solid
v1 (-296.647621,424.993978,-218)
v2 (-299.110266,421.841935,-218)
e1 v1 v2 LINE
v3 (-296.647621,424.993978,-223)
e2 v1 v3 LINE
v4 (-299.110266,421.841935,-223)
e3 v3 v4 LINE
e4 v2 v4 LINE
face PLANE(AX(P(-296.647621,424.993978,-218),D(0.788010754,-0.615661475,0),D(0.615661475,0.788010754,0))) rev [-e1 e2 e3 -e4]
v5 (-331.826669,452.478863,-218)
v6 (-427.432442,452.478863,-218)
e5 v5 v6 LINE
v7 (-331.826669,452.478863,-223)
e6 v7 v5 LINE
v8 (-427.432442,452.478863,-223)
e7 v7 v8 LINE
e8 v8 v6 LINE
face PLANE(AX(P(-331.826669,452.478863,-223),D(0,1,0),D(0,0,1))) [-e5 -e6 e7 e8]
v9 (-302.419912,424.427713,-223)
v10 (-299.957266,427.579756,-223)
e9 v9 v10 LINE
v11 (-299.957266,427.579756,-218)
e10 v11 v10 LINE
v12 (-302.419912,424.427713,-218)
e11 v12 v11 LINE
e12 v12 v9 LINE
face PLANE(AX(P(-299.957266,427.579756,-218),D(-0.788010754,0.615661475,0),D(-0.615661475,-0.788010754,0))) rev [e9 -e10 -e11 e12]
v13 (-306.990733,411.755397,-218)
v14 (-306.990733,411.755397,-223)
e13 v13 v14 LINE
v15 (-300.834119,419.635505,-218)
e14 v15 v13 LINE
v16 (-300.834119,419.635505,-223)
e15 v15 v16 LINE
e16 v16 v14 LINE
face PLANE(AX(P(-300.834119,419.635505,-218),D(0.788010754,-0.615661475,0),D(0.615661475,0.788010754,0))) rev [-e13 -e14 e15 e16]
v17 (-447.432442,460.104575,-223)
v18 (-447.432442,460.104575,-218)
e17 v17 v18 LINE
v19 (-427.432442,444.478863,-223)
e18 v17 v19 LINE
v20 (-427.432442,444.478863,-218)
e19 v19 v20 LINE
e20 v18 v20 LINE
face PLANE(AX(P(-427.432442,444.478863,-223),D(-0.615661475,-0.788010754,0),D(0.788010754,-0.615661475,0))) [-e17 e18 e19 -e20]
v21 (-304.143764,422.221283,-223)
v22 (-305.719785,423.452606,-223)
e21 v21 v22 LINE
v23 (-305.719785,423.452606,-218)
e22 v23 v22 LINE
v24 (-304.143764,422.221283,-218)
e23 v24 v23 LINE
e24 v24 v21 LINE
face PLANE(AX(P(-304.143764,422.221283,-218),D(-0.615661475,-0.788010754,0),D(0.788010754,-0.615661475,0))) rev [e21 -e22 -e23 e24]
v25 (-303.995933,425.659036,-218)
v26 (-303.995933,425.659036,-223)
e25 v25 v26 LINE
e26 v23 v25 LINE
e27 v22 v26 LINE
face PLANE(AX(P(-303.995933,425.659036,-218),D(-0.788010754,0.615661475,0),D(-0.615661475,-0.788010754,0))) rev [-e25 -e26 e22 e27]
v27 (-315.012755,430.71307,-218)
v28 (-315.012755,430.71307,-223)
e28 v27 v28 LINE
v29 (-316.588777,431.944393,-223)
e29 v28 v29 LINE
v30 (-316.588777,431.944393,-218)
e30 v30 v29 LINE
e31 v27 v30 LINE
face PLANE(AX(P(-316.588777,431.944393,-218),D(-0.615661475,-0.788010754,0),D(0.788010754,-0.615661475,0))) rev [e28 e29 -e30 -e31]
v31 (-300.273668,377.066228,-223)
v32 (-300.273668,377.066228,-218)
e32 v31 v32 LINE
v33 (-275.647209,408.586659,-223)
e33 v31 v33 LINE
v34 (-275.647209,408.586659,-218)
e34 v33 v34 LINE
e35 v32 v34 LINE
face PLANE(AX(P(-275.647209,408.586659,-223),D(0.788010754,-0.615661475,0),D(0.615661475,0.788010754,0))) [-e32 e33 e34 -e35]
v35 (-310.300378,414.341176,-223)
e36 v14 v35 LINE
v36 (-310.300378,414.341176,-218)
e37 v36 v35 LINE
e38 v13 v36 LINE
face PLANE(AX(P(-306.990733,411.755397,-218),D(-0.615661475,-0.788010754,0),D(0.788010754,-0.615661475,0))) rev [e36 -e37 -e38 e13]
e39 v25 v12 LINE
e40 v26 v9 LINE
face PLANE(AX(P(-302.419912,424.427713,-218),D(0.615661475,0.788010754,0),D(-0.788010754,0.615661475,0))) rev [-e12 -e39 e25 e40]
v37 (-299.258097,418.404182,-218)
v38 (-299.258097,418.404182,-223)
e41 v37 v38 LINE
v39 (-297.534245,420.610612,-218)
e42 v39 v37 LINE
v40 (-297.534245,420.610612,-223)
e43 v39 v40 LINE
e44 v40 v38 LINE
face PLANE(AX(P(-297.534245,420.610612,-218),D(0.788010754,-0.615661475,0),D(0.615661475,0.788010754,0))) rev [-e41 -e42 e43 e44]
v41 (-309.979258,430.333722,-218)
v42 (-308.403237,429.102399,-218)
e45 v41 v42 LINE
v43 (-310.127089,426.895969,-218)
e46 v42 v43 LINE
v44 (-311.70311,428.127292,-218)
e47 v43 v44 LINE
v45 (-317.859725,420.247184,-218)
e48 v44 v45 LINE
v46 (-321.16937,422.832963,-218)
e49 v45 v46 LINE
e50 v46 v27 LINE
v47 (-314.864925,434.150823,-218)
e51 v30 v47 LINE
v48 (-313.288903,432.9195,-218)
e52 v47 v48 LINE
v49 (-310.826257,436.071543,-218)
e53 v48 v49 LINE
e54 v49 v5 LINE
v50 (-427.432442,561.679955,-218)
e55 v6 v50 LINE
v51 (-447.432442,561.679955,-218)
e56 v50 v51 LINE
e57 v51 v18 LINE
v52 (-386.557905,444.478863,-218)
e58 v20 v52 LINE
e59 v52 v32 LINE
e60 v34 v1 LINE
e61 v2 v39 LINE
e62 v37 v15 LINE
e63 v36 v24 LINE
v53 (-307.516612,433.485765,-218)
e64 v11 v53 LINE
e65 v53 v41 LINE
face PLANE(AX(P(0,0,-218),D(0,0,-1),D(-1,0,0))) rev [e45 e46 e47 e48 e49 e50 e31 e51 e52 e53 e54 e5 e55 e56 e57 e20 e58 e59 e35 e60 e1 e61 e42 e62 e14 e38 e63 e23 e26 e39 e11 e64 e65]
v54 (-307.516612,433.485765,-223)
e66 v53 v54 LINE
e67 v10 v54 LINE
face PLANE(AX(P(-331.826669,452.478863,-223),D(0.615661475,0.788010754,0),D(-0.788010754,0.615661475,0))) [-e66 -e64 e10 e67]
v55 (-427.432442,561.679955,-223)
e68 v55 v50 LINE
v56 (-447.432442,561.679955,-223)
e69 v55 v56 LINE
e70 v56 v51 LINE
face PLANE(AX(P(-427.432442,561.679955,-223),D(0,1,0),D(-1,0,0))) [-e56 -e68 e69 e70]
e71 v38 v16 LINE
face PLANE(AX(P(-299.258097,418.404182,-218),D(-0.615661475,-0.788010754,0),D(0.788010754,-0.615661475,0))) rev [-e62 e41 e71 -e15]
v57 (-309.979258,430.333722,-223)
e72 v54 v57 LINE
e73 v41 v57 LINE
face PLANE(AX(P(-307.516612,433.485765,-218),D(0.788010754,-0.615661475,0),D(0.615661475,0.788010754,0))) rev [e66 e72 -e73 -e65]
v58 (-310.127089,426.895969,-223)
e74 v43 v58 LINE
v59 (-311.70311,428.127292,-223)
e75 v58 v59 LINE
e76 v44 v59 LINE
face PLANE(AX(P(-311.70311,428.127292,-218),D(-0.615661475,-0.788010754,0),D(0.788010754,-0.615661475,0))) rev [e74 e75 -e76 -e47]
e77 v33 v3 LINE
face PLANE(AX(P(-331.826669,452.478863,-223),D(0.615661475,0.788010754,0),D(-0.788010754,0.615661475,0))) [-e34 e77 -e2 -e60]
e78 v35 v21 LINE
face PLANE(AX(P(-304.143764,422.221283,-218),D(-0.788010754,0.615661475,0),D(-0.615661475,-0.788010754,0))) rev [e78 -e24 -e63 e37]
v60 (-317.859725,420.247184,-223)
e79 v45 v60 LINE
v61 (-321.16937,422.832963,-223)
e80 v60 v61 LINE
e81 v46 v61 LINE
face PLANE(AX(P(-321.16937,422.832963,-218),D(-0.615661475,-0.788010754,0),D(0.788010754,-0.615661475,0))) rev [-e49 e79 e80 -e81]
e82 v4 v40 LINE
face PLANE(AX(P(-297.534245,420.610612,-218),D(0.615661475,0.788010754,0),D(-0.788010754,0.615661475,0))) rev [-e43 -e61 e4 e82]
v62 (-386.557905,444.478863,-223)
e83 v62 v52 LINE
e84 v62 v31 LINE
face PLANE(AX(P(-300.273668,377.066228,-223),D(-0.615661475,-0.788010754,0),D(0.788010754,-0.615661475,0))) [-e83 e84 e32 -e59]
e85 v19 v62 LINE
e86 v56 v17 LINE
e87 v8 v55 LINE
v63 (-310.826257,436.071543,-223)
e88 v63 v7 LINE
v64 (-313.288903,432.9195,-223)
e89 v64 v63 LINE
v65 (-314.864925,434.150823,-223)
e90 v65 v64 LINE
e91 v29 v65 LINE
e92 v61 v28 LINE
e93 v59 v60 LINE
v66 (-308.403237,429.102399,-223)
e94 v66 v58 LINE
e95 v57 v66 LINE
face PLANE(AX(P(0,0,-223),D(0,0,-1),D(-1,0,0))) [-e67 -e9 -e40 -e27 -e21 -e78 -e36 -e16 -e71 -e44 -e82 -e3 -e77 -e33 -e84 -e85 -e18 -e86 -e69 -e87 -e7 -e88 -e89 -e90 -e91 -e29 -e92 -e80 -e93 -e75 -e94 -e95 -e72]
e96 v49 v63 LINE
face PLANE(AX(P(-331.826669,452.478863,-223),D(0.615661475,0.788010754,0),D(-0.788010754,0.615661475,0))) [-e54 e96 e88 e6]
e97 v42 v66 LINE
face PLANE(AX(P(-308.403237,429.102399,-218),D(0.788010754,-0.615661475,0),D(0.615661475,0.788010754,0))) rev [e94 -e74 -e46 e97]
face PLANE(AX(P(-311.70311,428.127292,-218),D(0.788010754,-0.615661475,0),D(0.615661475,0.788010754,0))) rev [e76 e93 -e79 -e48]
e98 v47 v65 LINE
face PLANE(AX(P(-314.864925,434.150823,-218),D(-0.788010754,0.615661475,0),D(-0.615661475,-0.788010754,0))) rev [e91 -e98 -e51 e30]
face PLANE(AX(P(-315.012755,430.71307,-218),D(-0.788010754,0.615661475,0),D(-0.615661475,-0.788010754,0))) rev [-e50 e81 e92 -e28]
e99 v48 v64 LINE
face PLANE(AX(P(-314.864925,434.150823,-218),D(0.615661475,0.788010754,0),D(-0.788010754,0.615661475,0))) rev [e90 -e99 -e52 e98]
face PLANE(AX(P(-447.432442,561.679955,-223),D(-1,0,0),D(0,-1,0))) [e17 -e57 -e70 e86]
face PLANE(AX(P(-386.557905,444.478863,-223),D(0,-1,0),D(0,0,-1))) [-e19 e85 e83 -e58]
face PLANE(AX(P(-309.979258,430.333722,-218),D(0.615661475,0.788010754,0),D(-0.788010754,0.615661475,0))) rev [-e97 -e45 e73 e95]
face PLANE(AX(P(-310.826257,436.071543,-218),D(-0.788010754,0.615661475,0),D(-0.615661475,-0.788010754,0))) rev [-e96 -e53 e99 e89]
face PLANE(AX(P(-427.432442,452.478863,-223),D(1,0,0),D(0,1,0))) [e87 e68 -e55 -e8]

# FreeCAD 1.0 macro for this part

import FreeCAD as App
import Part
import Sketcher
Q = App.Units.Quantity

doc = App.newDocument("Part")
body = doc.addObject("PartDesign::Body", "Body")

sketch1 = doc.addObject("Sketcher::SketchObject", "Sketch")
body.addObject(sketch1)
sketch1.AttachmentSupport = (doc.XY_Plane, [""])
sketch1.MapMode = "FlatFace"
sketch1.AttachmentOffset = App.Placement(App.Vector(0, 0, -218), App.Rotation())
sketch1.addGeometry(Part.LineSegment(App.Vector(-276, 409, 0), App.Vector(-332, 452, 0)), False)
sketch1.addGeometry(Part.LineSegment(App.Vector(-332, 452, 0), App.Vector(-427, 452, 0)), False)
sketch1.addGeometry(Part.LineSegment(App.Vector(-427, 452, 0), App.Vector(-427, 562, 0)), False)
sketch1.addGeometry(Part.LineSegment(App.Vector(-427, 562, 0), App.Vector(-447, 562, 0)), False)
sketch1.addGeometry(Part.LineSegment(App.Vector(-447, 562, 0), App.Vector(-447, 460, 0)), False)
sketch1.addGeometry(Part.LineSegment(App.Vector(-447, 460, 0), App.Vector(-427, 444, 0)), False)
sketch1.addGeometry(Part.LineSegment(App.Vector(-427, 444, 0), App.Vector(-387, 444, 0)), False)
sketch1.addGeometry(Part.LineSegment(App.Vector(-387, 444, 0), App.Vector(-300, 377, 0)), False)
sketch1.addGeometry(Part.LineSegment(App.Vector(-300, 377, 0), App.Vector(-276, 409, 0)), False)
sketch1.addConstraint(Sketcher.Constraint("Coincident", 0, 2, 1, 1))
sketch1.addConstraint(Sketcher.Constraint("Coincident", 1, 2, 2, 1))
sketch1.addConstraint(Sketcher.Constraint("Coincident", 2, 2, 3, 1))
sketch1.addConstraint(Sketcher.Constraint("Coincident", 3, 2, 4, 1))
sketch1.addConstraint(Sketcher.Constraint("Coincident", 4, 2, 5, 1))
sketch1.addConstraint(Sketcher.Constraint("Coincident", 5, 2, 6, 1))
sketch1.addConstraint(Sketcher.Constraint("Coincident", 6, 2, 7, 1))
sketch1.addConstraint(Sketcher.Constraint("Coincident", 7, 2, 8, 1))
sketch1.addConstraint(Sketcher.Constraint("Coincident", 8, 2, 0, 1))
sketch1.addConstraint(Sketcher.Constraint("Horizontal", 1))
sketch1.addConstraint(Sketcher.Constraint("Vertical", 2))
sketch1.addConstraint(Sketcher.Constraint("Horizontal", 3))
sketch1.addConstraint(Sketcher.Constraint("Vertical", 4))
sketch1.addConstraint(Sketcher.Constraint("Horizontal", 6))
sketch1.addConstraint(Sketcher.Constraint("Parallel", 0, 5))
sketch1.addConstraint(Sketcher.Constraint("Parallel", 5, 7))
sketch1.addConstraint(Sketcher.Constraint("Perpendicular", 7, 8))
sketch1.addConstraint(Sketcher.Constraint("Vertical", 2, 2, 5, 2))
sketch1.addConstraint(Sketcher.Constraint("DistanceX", 3, 2, 3, 1, Q("20 mm")))
sketch1.addConstraint(Sketcher.Constraint("Angle", 0, Q("142 deg")))
sketch1.addConstraint(Sketcher.Constraint("Distance", 8, Q("40 mm")))
sketch1.addConstraint(Sketcher.Constraint("DistanceY", 5, 2, 1, 2, Q("8 mm")))
sketch1.addConstraint(Sketcher.Constraint("DistanceX", 0, 2, 7, 2, Q("31.553001 mm")))
sketch1.addConstraint(Sketcher.Constraint("DistanceY", 4, 2, 4, 1, Q("101.57538 mm")))
sketch1.addConstraint(Sketcher.Constraint("DistanceX", 1, 2, 1, 1, Q("95.605774 mm")))
sketch1.addConstraint(Sketcher.Constraint("DistanceX", 0, 2, -1, 1, Q("331.826669 mm")))
sketch1.addConstraint(Sketcher.Constraint("DistanceY", -1, 1, 7, 2, Q("377.066228 mm")))
pad1 = doc.addObject("PartDesign::Pad", "Pad")
body.addObject(pad1)
pad1.Profile = sketch1
pad1.Length = 5
pad1.Reversed = True

sketch2 = doc.addObject("Sketcher::SketchObject", "Sketch001")
body.addObject(sketch2)
sketch2.AttachmentSupport = (doc.XY_Plane, [""])
sketch2.MapMode = "FlatFace"
sketch2.AttachmentOffset = App.Placement(App.Vector(0, 0, -223), App.Rotation())
sketch2.addGeometry(Part.LineSegment(App.Vector(-300, 427.6, 0), App.Vector(-296.6, 425, 0)), False)
sketch2.addGeometry(Part.LineSegment(App.Vector(-296.6, 425, 0), App.Vector(-299.1, 421.8, 0)), False)
sketch2.addGeometry(Part.LineSegment(App.Vector(-299.1, 421.8, 0), App.Vector(-297.5, 420.6, 0)), False)
sketch2.addGeometry(Part.LineSegment(App.Vector(-297.5, 420.6, 0), App.Vector(-299.3, 418.4, 0)), False)
sketch2.addGeometry(Part.LineSegment(App.Vector(-299.3, 418.4, 0), App.Vector(-300.8, 419.6, 0)), False)
sketch2.addGeometry(Part.LineSegment(App.Vector(-300.8, 419.6, 0), App.Vector(-307, 411.8, 0)), False)
sketch2.addGeometry(Part.LineSegment(App.Vector(-307, 411.8, 0), App.Vector(-310.3, 414.3, 0)), False)
sketch2.addGeometry(Part.LineSegment(App.Vector(-310.3, 414.3, 0), App.Vector(-304.1, 422.2, 0)), False)
sketch2.addGeometry(Part.LineSegment(App.Vector(-304.1, 422.2, 0), App.Vector(-305.7, 423.5, 0)), False)
sketch2.addGeometry(Part.LineSegment(App.Vector(-305.7, 423.5, 0), App.Vector(-304, 425.7, 0)), False)
sketch2.addGeometry(Part.LineSegment(App.Vector(-304, 425.7, 0), App.Vector(-302.4, 424.4, 0)), False)
sketch2.addGeometry(Part.LineSegment(App.Vector(-302.4, 424.4, 0), App.Vector(-300, 427.6, 0)), False)
sketch2.addGeometry(Part.LineSegment(App.Vector(-310, 430.3, 0), App.Vector(-308.4, 429.1, 0)), False)
sketch2.addGeometry(Part.LineSegment(App.Vector(-308.4, 429.1, 0), App.Vector(-310.1, 426.9, 0)), False)
sketch2.addGeometry(Part.LineSegment(App.Vector(-310.1, 426.9, 0), App.Vector(-311.7, 428.1, 0)), False)
sketch2.addGeometry(Part.LineSegment(App.Vector(-311.7, 428.1, 0), App.Vector(-317.9, 420.2, 0)), False)
sketch2.addGeometry(Part.LineSegment(App.Vector(-317.9, 420.2, 0), App.Vector(-321.2, 422.8, 0)), False)
sketch2.addGeometry(Part.LineSegment(App.Vector(-321.2, 422.8, 0), App.Vector(-315, 430.7, 0)), False)
sketch2.addGeometry(Part.LineSegment(App.Vector(-315, 430.7, 0), App.Vector(-316.6, 431.9, 0)), False)
sketch2.addGeometry(Part.LineSegment(App.Vector(-316.6, 431.9, 0), App.Vector(-314.9, 434.2, 0)), False)
sketch2.addGeometry(Part.LineSegment(App.Vector(-314.9, 434.2, 0), App.Vector(-313.3, 432.9, 0)), False)
sketch2.addGeometry(Part.LineSegment(App.Vector(-313.3, 432.9, 0), App.Vector(-310.8, 436.1, 0)), False)
sketch2.addGeometry(Part.LineSegment(App.Vector(-310.8, 436.1, 0), App.Vector(-307.5, 433.5, 0)), False)
sketch2.addGeometry(Part.LineSegment(App.Vector(-307.5, 433.5, 0), App.Vector(-310, 430.3, 0)), False)
sketch2.addConstraint(Sketcher.Constraint("Coincident", 0, 2, 1, 1))
sketch2.addConstraint(Sketcher.Constraint("Coincident", 1, 2, 2, 1))
sketch2.addConstraint(Sketcher.Constraint("Coincident", 2, 2, 3, 1))
sketch2.addConstraint(Sketcher.Constraint("Coincident", 3, 2, 4, 1))
sketch2.addConstraint(Sketcher.Constraint("Coincident", 4, 2, 5, 1))
sketch2.addConstraint(Sketcher.Constraint("Coincident", 5, 2, 6, 1))
sketch2.addConstraint(Sketcher.Constraint("Coincident", 6, 2, 7, 1))
sketch2.addConstraint(Sketcher.Constraint("Coincident", 7, 2, 8, 1))
sketch2.addConstraint(Sketcher.Constraint("Coincident", 8, 2, 9, 1))
sketch2.addConstraint(Sketcher.Constraint("Coincident", 9, 2, 10, 1))
sketch2.addConstraint(Sketcher.Constraint("Coincident", 10, 2, 11, 1))
sketch2.addConstraint(Sketcher.Constraint("Coincident", 11, 2, 0, 1))
sketch2.addConstraint(Sketcher.Constraint("Coincident", 12, 2, 13, 1))
sketch2.addConstraint(Sketcher.Constraint("Coincident", 13, 2, 14, 1))
sketch2.addConstraint(Sketcher.Constraint("Coincident", 14, 2, 15, 1))
sketch2.addConstraint(Sketcher.Constraint("Coincident", 15, 2, 16, 1))
sketch2.addConstraint(Sketcher.Constraint("Coincident", 16, 2, 17, 1))
sketch2.addConstraint(Sketcher.Constraint("Coincident", 17, 2, 18, 1))
sketch2.addConstraint(Sketcher.Constraint("Coincident", 18, 2, 19, 1))
sketch2.addConstraint(Sketcher.Constraint("Coincident", 19, 2, 20, 1))
sketch2.addConstraint(Sketcher.Constraint("Coincident", 20, 2, 21, 1))
sketch2.addConstraint(Sketcher.Constraint("Coincident", 21, 2, 22, 1))
sketch2.addConstraint(Sketcher.Constraint("Coincident", 22, 2, 23, 1))
sketch2.addConstraint(Sketcher.Constraint("Coincident", 23, 2, 12, 1))
sketch2.addConstraint(Sketcher.Constraint("Perpendicular", 0, 1))
sketch2.addConstraint(Sketcher.Constraint("Perpendicular", 1, 2))
sketch2.addConstraint(Sketcher.Constraint("Perpendicular", 2, 3))
sketch2.addConstraint(Sketcher.Constraint("Perpendicular", 3, 4))
sketch2.addConstraint(Sketcher.Constraint("Perpendicular", 4, 5))
sketch2.addConstraint(Sketcher.Constraint("Perpendicular", 5, 6))
sketch2.addConstraint(Sketcher.Constraint("Perpendicular", 6, 7))
sketch2.addConstraint(Sketcher.Constraint("Perpendicular", 7, 8))
sketch2.addConstraint(Sketcher.Constraint("Perpendicular", 8, 9))
sketch2.addConstraint(Sketcher.Constraint("Perpendicular", 9, 10))
sketch2.addConstraint(Sketcher.Constraint("Perpendicular", 10, 11))
sketch2.addConstraint(Sketcher.Constraint("Perpendicular", 11, 12))
sketch2.addConstraint(Sketcher.Constraint("Perpendicular", 12, 13))
sketch2.addConstraint(Sketcher.Constraint("Perpendicular", 13, 14))
sketch2.addConstraint(Sketcher.Constraint("Perpendicular", 14, 15))
sketch2.addConstraint(Sketcher.Constraint("Perpendicular", 15, 16))
sketch2.addConstraint(Sketcher.Constraint("Perpendicular", 16, 17))
sketch2.addConstraint(Sketcher.Constraint("Perpendicular", 17, 18))
sketch2.addConstraint(Sketcher.Constraint("Perpendicular", 18, 19))
sketch2.addConstraint(Sketcher.Constraint("Perpendicular", 19, 20))
sketch2.addConstraint(Sketcher.Constraint("Perpendicular", 20, 21))
sketch2.addConstraint(Sketcher.Constraint("Perpendicular", 21, 22))
sketch2.addConstraint(Sketcher.Constraint("Perpendicular", 22, 23))
sketch2.addConstraint(Sketcher.Constraint("Equal", 2, 4))
sketch2.addConstraint(Sketcher.Constraint("Equal", 0, 6))
sketch2.addConstraint(Sketcher.Constraint("Equal", 5, 7))
sketch2.addConstraint(Sketcher.Constraint("Equal", 4, 8))
sketch2.addConstraint(Sketcher.Constraint("Equal", 3, 9))
sketch2.addConstraint(Sketcher.Constraint("Equal", 10, 12))
sketch2.addConstraint(Sketcher.Constraint("Equal", 9, 13))
sketch2.addConstraint(Sketcher.Constraint("Equal", 12, 14))
sketch2.addConstraint(Sketcher.Constraint("Equal", 7, 15))
sketch2.addConstraint(Sketcher.Constraint("Equal", 6, 16))
sketch2.addConstraint(Sketcher.Constraint("Equal", 15, 17))
sketch2.addConstraint(Sketcher.Constraint("Equal", 14, 18))
sketch2.addConstraint(Sketcher.Constraint("Equal", 13, 19))
sketch2.addConstraint(Sketcher.Constraint("Equal", 18, 20))
sketch2.addConstraint(Sketcher.Constraint("Equal", 11, 21))
sketch2.addConstraint(Sketcher.Constraint("Angle", 0, Q("-38 deg")))
sketch2.addConstraint(Sketcher.Constraint("Distance", 1, Q("4 mm")))
sketch2.addConstraint(Sketcher.Constraint("Distance", 2, Q("2 mm")))
sketch2.addConstraint(Sketcher.Constraint("Distance", 5, Q("10 mm")))
sketch2.addConstraint(Sketcher.Constraint("Distance", 0, Q("4.2 mm")))
sketch2.addConstraint(Sketcher.Constraint("Distance", 3, Q("2.8 mm")))
sketch2.addConstraint(Sketcher.Constraint("DistanceY", -1, 1, 12, 2, Q("429.102399 mm")))
sketch2.addConstraint(Sketcher.Constraint("DistanceX", 0, 2, -1, 1, Q("296.647621 mm")))
sketch2.addConstraint(Sketcher.Constraint("DistanceY", -1, 1, 0, 2, Q("424.993978 mm")))
sketch2.addConstraint(Sketcher.Constraint("DistanceX", 13, 2, -1, 1, Q("310.127089 mm")))
pocket1 = doc.addObject("PartDesign::Pocket", "Pocket")
body.addObject(pocket1)
pocket1.Profile = sketch2
pocket1.Type = "ThroughAll"
pocket1.Midplane = True

doc.recompute()
